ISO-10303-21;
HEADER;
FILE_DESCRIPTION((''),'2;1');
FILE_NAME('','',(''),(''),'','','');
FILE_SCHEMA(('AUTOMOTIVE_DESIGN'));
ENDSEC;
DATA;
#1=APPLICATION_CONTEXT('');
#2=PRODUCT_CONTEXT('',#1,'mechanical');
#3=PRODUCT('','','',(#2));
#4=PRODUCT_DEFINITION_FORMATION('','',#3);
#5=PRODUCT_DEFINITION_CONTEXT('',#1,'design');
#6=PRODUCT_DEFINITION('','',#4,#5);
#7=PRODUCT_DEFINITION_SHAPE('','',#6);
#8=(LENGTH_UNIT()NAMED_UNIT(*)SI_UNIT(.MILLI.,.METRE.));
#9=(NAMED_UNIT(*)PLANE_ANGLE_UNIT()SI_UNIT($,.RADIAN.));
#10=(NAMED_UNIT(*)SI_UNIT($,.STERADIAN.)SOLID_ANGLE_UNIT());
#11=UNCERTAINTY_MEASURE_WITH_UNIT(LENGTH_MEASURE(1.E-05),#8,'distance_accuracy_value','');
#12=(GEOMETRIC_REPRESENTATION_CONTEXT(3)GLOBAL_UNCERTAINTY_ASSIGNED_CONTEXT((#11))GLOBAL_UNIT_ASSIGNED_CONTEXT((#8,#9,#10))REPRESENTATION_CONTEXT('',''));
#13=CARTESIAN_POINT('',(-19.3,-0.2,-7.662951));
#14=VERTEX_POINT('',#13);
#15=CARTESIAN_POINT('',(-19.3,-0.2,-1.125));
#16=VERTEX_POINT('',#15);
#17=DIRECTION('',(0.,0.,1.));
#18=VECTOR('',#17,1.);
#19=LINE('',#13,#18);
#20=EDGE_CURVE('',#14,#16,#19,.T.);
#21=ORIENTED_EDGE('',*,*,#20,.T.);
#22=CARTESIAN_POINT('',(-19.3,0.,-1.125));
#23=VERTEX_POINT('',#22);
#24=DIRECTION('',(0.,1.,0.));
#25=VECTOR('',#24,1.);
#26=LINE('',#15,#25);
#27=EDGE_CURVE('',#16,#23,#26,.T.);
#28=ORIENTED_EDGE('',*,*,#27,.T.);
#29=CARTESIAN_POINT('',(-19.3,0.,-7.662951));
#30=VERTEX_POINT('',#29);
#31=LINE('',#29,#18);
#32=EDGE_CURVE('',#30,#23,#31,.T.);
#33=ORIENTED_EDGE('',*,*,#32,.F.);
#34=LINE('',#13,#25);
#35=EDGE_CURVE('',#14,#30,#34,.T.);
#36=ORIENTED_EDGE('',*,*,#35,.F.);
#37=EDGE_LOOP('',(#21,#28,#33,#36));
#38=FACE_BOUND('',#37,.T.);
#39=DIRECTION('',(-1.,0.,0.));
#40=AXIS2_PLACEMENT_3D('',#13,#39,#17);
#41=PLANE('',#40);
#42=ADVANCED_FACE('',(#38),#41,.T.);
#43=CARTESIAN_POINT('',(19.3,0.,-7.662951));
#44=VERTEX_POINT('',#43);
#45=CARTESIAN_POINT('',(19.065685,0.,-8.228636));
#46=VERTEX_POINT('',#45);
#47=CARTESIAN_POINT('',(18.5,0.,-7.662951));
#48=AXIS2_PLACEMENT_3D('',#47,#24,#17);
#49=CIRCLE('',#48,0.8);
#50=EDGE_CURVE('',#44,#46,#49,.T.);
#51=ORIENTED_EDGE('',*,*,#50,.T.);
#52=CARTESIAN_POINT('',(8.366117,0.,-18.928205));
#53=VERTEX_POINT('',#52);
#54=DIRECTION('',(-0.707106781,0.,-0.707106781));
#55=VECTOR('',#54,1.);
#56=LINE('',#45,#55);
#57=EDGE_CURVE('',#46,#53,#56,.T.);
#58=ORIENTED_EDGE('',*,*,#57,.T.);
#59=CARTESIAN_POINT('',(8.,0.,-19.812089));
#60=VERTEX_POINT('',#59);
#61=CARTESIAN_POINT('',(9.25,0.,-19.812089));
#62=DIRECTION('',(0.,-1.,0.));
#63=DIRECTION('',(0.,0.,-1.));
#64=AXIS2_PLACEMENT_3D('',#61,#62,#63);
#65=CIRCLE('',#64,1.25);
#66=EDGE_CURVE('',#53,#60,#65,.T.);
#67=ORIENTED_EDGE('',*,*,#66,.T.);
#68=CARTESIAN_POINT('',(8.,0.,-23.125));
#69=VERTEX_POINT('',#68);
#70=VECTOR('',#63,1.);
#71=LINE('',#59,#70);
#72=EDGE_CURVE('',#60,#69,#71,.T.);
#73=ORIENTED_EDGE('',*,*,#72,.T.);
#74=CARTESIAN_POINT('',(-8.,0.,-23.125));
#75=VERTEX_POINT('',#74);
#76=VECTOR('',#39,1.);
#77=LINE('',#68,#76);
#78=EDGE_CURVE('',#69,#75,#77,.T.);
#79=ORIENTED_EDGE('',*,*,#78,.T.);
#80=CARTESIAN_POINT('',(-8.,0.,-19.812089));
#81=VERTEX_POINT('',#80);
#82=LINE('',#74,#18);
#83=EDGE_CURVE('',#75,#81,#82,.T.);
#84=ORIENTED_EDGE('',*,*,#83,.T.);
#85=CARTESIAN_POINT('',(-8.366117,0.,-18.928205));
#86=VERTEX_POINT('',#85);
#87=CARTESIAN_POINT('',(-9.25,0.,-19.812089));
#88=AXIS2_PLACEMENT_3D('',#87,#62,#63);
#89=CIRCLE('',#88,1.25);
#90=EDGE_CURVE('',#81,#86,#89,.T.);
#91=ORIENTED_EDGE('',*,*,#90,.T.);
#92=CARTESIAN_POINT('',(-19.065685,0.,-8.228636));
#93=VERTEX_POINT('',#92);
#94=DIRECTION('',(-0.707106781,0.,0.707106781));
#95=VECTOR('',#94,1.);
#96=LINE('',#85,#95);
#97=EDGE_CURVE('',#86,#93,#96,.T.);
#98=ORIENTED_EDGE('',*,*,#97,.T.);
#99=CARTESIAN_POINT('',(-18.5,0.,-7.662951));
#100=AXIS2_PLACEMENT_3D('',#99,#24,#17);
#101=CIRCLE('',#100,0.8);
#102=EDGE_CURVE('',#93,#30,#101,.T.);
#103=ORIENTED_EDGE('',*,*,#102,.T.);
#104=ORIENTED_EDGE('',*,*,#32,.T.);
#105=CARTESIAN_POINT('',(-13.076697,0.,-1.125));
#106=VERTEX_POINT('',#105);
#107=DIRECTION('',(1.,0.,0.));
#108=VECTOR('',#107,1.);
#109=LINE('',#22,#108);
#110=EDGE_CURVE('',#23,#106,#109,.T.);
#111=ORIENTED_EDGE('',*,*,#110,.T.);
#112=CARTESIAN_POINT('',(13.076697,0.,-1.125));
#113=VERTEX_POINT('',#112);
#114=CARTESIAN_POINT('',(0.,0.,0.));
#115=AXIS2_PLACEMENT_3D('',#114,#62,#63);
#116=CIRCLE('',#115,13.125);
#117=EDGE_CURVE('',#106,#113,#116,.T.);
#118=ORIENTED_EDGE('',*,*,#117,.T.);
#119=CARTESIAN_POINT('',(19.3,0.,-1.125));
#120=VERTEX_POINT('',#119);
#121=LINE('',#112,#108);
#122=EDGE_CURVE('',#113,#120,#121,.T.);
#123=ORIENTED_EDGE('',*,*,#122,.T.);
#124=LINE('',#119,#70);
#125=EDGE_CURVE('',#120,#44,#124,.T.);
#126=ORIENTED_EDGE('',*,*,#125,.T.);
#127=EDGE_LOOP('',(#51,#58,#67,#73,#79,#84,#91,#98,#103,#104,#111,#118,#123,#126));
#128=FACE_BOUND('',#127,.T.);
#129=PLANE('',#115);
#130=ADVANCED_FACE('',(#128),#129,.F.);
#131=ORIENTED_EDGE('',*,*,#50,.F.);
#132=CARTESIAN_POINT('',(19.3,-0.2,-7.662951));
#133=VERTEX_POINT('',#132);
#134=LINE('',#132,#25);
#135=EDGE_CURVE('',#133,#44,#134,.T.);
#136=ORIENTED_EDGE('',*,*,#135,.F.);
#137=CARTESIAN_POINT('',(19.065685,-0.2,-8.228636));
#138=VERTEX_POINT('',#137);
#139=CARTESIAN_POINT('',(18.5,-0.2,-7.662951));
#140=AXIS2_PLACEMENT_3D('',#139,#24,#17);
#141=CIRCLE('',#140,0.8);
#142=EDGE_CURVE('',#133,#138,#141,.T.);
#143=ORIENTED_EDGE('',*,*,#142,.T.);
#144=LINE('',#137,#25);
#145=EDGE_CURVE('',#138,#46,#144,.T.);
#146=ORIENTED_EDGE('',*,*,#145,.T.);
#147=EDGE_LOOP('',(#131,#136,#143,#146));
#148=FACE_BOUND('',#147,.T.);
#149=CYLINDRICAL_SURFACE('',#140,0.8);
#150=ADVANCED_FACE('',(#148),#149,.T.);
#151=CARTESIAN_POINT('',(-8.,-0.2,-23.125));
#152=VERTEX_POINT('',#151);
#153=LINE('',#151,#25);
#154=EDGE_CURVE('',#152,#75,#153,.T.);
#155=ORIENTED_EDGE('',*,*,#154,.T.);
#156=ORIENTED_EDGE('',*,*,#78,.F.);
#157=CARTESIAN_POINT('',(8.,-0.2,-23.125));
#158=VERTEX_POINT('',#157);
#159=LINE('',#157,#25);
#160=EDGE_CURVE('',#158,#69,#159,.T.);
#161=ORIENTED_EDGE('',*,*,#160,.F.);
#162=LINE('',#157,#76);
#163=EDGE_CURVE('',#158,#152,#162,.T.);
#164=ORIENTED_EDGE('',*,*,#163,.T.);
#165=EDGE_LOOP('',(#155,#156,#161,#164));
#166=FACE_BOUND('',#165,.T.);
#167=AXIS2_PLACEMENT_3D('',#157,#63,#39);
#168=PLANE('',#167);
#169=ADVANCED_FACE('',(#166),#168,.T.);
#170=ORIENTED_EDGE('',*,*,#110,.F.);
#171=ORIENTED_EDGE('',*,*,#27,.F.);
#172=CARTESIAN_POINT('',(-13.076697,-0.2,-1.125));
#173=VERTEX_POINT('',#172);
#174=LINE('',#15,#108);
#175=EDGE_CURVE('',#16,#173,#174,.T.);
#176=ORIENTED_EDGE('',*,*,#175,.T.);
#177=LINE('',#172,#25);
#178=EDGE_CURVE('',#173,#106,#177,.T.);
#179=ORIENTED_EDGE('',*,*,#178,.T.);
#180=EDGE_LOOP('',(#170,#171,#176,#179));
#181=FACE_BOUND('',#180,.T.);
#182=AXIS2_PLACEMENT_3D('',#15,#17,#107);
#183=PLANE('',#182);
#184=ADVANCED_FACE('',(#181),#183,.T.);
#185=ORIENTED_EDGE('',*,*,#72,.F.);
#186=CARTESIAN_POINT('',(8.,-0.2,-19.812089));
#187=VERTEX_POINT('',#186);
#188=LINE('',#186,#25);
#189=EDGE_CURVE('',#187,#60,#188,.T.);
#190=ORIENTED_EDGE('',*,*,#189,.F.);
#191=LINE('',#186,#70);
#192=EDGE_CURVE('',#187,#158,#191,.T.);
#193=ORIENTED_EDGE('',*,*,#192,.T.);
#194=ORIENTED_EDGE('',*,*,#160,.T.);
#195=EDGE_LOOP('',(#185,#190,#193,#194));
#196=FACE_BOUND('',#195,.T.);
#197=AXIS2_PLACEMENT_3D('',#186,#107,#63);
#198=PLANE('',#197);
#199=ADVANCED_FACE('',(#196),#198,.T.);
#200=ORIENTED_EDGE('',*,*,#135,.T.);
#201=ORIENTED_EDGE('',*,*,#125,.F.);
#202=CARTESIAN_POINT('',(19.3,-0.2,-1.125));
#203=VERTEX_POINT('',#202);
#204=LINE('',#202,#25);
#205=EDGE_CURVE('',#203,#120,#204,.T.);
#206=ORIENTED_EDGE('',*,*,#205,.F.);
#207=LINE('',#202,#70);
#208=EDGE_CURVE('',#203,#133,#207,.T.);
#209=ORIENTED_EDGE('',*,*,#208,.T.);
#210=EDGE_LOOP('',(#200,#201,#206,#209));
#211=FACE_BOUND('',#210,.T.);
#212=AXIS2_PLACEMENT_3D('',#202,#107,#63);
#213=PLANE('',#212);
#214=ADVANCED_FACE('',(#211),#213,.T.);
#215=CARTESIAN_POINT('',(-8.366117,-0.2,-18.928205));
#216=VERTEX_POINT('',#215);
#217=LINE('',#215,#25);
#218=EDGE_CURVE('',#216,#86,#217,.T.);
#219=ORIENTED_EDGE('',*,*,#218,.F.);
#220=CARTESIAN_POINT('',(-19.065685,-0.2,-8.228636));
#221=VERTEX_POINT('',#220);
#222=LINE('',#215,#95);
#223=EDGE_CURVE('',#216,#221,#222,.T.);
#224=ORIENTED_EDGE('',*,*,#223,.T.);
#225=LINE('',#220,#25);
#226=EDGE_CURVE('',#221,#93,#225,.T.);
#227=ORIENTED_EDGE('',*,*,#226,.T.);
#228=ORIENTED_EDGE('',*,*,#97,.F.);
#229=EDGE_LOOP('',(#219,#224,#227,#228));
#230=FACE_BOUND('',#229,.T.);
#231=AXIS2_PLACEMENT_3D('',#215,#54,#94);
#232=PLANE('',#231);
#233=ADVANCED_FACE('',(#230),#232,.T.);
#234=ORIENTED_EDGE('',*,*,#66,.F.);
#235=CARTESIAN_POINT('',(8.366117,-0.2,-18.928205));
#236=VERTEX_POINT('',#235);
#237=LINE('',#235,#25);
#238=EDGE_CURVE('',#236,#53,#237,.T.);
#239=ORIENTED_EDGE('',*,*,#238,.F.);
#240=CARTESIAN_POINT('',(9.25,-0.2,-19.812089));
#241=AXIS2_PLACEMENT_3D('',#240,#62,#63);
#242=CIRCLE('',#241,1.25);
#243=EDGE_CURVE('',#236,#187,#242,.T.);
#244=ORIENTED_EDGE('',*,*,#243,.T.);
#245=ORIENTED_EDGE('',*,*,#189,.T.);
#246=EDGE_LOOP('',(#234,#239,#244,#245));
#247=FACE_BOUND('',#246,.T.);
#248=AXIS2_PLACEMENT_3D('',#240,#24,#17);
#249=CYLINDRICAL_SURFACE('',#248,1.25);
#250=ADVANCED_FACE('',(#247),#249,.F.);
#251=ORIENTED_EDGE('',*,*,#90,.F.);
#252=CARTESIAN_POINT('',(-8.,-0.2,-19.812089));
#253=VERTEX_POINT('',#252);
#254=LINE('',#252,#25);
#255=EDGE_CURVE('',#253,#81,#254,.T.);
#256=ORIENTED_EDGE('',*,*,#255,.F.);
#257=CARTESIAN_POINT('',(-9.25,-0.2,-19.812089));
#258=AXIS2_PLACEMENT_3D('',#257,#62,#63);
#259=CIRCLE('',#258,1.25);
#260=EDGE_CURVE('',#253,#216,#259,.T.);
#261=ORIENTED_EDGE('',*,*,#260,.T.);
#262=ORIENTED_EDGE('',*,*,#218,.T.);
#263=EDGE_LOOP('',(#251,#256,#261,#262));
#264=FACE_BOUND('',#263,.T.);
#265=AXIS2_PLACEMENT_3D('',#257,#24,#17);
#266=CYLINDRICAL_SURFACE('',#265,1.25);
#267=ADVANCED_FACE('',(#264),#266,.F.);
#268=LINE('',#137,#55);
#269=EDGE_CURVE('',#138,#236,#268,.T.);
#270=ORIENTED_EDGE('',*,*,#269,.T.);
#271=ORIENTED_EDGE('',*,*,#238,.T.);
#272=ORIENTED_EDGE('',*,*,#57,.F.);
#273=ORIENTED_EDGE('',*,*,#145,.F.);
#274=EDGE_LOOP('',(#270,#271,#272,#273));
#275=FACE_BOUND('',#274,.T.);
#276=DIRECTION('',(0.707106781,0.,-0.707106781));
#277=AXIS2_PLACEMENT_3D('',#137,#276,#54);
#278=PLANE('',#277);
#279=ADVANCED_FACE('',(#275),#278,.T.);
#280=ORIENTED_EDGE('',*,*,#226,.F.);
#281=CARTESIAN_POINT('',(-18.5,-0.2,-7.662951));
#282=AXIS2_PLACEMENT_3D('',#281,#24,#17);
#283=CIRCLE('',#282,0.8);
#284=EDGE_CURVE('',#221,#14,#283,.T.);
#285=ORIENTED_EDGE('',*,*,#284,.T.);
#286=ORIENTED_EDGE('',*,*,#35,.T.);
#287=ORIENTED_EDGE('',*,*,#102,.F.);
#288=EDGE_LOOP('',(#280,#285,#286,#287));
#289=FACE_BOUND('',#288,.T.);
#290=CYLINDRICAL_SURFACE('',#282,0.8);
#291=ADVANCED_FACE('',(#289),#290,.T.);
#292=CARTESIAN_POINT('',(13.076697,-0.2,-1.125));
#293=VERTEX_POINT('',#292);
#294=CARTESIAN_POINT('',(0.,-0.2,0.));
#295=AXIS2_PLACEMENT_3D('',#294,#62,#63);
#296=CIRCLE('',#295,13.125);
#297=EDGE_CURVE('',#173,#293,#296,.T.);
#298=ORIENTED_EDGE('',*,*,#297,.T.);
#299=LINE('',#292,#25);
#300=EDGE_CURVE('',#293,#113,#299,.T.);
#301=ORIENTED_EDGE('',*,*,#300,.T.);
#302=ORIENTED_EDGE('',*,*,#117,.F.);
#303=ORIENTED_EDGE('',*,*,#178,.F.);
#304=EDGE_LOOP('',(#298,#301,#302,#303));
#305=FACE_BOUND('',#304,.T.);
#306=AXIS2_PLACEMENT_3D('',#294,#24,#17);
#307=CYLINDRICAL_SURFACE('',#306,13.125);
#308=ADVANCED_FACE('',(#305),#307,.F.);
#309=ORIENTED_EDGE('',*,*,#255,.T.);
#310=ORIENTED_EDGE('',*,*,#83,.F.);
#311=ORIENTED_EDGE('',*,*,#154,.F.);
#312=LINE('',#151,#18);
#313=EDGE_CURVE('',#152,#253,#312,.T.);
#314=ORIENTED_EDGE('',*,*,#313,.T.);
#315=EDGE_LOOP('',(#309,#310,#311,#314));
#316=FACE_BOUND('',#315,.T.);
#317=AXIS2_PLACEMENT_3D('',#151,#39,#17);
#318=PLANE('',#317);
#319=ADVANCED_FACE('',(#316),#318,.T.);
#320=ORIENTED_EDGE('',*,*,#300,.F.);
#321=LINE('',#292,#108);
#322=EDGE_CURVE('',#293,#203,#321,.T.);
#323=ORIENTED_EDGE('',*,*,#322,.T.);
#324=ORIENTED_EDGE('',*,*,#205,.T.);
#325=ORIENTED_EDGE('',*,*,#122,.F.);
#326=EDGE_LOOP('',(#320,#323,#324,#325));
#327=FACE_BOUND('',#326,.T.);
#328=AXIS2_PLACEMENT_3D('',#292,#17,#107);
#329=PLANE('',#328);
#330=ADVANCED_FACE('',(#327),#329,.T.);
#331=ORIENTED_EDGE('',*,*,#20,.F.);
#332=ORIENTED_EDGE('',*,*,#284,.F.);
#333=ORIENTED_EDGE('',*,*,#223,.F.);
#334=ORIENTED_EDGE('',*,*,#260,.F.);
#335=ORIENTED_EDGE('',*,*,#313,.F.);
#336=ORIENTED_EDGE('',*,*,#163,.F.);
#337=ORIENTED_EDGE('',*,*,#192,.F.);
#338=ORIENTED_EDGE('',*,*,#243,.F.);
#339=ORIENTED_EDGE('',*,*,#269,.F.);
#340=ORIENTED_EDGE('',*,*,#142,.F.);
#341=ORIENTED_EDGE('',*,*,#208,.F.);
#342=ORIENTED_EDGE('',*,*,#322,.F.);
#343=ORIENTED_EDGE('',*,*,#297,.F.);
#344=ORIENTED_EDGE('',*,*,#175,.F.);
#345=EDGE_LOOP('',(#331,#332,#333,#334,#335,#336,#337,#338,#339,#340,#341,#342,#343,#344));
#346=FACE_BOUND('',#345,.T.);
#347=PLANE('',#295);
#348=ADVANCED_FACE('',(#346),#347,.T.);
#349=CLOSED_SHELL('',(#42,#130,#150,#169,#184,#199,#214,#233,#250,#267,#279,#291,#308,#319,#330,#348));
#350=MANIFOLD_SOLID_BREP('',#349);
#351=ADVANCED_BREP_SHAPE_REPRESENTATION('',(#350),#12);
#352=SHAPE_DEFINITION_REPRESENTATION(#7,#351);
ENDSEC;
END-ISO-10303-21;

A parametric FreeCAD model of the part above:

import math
import FreeCAD as App
import Part
import Sketcher

V = App.Vector
Q = App.Units.Quantity

doc = App.newDocument("Part")
body = doc.addObject("PartDesign::Body", "Body")

sketch1 = body.newObject("Sketcher::SketchObject", "Sketch")
sketch1.AttachmentSupport = (doc.getObject("XZ_Plane"), [""])
sketch1.MapMode = "FlatFace"
sketch1.addGeometry(Part.LineSegment(V(-19.3, -1.1, 0), V(-13.1, -1.1, 0)), False)
sketch1.addGeometry(Part.ArcOfCircle(Part.Circle(V(0, 0, 0), V(0, 0, 1), 13.1), math.radians(-175), math.radians(-5)), False)
sketch1.addGeometry(Part.LineSegment(V(13.1, -1.1, 0), V(19.3, -1.1, 0)), False)
sketch1.addGeometry(Part.LineSegment(V(19.3, -1.1, 0), V(19.3, -7.7, 0)), False)
sketch1.addGeometry(Part.ArcOfCircle(Part.Circle(V(18.5, -7.7, 0), V(0, 0, 1), 0.8), math.radians(-45), math.radians(0)), False)
sketch1.addGeometry(Part.LineSegment(V(19.1, -8.2, 0), V(8.4, -18.9, 0)), False)
sketch1.addGeometry(Part.ArcOfCircle(Part.Circle(V(9.3, -19.8, 0), V(0, 0, 1), 1.3), math.radians(135), math.radians(180)), False)
sketch1.addGeometry(Part.LineSegment(V(8, -19.8, 0), V(8, -23.1, 0)), False)
sketch1.addGeometry(Part.LineSegment(V(8, -23.1, 0), V(-8, -23.1, 0)), False)
sketch1.addGeometry(Part.LineSegment(V(-8, -23.1, 0), V(-8, -19.8, 0)), False)
sketch1.addGeometry(Part.ArcOfCircle(Part.Circle(V(-9.3, -19.8, 0), V(0, 0, 1), 1.3), math.radians(0), math.radians(45)), False)
sketch1.addGeometry(Part.LineSegment(V(-8.4, -18.9, 0), V(-19.1, -8.2, 0)), False)
sketch1.addGeometry(Part.ArcOfCircle(Part.Circle(V(-18.5, -7.7, 0), V(0, 0, 1), 0.8), math.radians(-180), math.radians(-135)), False)
sketch1.addGeometry(Part.LineSegment(V(-19.3, -7.7, 0), V(-19.3, -1.1, 0)), False)
sketch1.addConstraint(Sketcher.Constraint("Coincident", 0, 2, 1, 1))
sketch1.addConstraint(Sketcher.Constraint("Coincident", 1, 2, 2, 1))
sketch1.addConstraint(Sketcher.Constraint("Coincident", 2, 2, 3, 1))
sketch1.addConstraint(Sketcher.Constraint("Tangent", 3, 2, 4, 2))
sketch1.addConstraint(Sketcher.Constraint("Tangent", 4, 1, 5, 1))
sketch1.addConstraint(Sketcher.Constraint("Tangent", 5, 2, 6, 1))
sketch1.addConstraint(Sketcher.Constraint("Tangent", 6, 2, 7, 1))
sketch1.addConstraint(Sketcher.Constraint("Coincident", 7, 2, 8, 1))
sketch1.addConstraint(Sketcher.Constraint("Coincident", 8, 2, 9, 1))
sketch1.addConstraint(Sketcher.Constraint("Tangent", 9, 2, 10, 1))
sketch1.addConstraint(Sketcher.Constraint("Tangent", 10, 2, 11, 1))
sketch1.addConstraint(Sketcher.Constraint("Tangent", 11, 2, 12, 2))
sketch1.addConstraint(Sketcher.Constraint("Tangent", 12, 1, 13, 1))
sketch1.addConstraint(Sketcher.Constraint("Coincident", 13, 2, 0, 1))
sketch1.addConstraint(Sketcher.Constraint("Horizontal", 0))
sketch1.addConstraint(Sketcher.Constraint("Horizontal", 2))
sketch1.addConstraint(Sketcher.Constraint("Vertical", 3))
sketch1.addConstraint(Sketcher.Constraint("Vertical", 7))
sketch1.addConstraint(Sketcher.Constraint("Horizontal", 8))
sketch1.addConstraint(Sketcher.Constraint("Vertical", 9))
sketch1.addConstraint(Sketcher.Constraint("Vertical", 13))
sketch1.addConstraint(Sketcher.Constraint("Coincident", 1, 3, -1, 1))
sketch1.addConstraint(Sketcher.Constraint("Equal", 6, 10))
sketch1.addConstraint(Sketcher.Constraint("Equal", 4, 12))
sketch1.addConstraint(Sketcher.Constraint("Symmetric", 6, 3, 10, 3, -2))
sketch1.addConstraint(Sketcher.Constraint("Symmetric", 4, 3, 12, 3, -2))
sketch1.addConstraint(Sketcher.Constraint("Perpendicular", 5, 11))
sketch1.addConstraint(Sketcher.Constraint("Horizontal", 0, 2, 1, 2))
sketch1.addConstraint(Sketcher.Constraint("Radius", 4, Q("0.8 mm")))
sketch1.addConstraint(Sketcher.Constraint("DistanceX", 8, 2, 8, 1, Q("16 mm")))
sketch1.addConstraint(Sketcher.Constraint("Radius", 6, Q("1.25 mm")))
sketch1.addConstraint(Sketcher.Constraint("Radius", 1, Q("13.125 mm")))
sketch1.addConstraint(Sketcher.Constraint("DistanceX", 12, 3, 4, 3, Q("37 mm")))
sketch1.addConstraint(Sketcher.Constraint("DistanceY", 0, 2, -1, 1, Q("1.125 mm")))
sketch1.addConstraint(Sketcher.Constraint("DistanceY", 7, 2, -1, 1, Q("23.125 mm")))
sketch1.addConstraint(Sketcher.Constraint("DistanceY", 3, 2, 3, 1, Q("6.537951 mm")))
pad1 = body.newObject("PartDesign::Pad", "Pad")
pad1.Profile = sketch1
pad1.Length = 0.2

doc.recompute()
